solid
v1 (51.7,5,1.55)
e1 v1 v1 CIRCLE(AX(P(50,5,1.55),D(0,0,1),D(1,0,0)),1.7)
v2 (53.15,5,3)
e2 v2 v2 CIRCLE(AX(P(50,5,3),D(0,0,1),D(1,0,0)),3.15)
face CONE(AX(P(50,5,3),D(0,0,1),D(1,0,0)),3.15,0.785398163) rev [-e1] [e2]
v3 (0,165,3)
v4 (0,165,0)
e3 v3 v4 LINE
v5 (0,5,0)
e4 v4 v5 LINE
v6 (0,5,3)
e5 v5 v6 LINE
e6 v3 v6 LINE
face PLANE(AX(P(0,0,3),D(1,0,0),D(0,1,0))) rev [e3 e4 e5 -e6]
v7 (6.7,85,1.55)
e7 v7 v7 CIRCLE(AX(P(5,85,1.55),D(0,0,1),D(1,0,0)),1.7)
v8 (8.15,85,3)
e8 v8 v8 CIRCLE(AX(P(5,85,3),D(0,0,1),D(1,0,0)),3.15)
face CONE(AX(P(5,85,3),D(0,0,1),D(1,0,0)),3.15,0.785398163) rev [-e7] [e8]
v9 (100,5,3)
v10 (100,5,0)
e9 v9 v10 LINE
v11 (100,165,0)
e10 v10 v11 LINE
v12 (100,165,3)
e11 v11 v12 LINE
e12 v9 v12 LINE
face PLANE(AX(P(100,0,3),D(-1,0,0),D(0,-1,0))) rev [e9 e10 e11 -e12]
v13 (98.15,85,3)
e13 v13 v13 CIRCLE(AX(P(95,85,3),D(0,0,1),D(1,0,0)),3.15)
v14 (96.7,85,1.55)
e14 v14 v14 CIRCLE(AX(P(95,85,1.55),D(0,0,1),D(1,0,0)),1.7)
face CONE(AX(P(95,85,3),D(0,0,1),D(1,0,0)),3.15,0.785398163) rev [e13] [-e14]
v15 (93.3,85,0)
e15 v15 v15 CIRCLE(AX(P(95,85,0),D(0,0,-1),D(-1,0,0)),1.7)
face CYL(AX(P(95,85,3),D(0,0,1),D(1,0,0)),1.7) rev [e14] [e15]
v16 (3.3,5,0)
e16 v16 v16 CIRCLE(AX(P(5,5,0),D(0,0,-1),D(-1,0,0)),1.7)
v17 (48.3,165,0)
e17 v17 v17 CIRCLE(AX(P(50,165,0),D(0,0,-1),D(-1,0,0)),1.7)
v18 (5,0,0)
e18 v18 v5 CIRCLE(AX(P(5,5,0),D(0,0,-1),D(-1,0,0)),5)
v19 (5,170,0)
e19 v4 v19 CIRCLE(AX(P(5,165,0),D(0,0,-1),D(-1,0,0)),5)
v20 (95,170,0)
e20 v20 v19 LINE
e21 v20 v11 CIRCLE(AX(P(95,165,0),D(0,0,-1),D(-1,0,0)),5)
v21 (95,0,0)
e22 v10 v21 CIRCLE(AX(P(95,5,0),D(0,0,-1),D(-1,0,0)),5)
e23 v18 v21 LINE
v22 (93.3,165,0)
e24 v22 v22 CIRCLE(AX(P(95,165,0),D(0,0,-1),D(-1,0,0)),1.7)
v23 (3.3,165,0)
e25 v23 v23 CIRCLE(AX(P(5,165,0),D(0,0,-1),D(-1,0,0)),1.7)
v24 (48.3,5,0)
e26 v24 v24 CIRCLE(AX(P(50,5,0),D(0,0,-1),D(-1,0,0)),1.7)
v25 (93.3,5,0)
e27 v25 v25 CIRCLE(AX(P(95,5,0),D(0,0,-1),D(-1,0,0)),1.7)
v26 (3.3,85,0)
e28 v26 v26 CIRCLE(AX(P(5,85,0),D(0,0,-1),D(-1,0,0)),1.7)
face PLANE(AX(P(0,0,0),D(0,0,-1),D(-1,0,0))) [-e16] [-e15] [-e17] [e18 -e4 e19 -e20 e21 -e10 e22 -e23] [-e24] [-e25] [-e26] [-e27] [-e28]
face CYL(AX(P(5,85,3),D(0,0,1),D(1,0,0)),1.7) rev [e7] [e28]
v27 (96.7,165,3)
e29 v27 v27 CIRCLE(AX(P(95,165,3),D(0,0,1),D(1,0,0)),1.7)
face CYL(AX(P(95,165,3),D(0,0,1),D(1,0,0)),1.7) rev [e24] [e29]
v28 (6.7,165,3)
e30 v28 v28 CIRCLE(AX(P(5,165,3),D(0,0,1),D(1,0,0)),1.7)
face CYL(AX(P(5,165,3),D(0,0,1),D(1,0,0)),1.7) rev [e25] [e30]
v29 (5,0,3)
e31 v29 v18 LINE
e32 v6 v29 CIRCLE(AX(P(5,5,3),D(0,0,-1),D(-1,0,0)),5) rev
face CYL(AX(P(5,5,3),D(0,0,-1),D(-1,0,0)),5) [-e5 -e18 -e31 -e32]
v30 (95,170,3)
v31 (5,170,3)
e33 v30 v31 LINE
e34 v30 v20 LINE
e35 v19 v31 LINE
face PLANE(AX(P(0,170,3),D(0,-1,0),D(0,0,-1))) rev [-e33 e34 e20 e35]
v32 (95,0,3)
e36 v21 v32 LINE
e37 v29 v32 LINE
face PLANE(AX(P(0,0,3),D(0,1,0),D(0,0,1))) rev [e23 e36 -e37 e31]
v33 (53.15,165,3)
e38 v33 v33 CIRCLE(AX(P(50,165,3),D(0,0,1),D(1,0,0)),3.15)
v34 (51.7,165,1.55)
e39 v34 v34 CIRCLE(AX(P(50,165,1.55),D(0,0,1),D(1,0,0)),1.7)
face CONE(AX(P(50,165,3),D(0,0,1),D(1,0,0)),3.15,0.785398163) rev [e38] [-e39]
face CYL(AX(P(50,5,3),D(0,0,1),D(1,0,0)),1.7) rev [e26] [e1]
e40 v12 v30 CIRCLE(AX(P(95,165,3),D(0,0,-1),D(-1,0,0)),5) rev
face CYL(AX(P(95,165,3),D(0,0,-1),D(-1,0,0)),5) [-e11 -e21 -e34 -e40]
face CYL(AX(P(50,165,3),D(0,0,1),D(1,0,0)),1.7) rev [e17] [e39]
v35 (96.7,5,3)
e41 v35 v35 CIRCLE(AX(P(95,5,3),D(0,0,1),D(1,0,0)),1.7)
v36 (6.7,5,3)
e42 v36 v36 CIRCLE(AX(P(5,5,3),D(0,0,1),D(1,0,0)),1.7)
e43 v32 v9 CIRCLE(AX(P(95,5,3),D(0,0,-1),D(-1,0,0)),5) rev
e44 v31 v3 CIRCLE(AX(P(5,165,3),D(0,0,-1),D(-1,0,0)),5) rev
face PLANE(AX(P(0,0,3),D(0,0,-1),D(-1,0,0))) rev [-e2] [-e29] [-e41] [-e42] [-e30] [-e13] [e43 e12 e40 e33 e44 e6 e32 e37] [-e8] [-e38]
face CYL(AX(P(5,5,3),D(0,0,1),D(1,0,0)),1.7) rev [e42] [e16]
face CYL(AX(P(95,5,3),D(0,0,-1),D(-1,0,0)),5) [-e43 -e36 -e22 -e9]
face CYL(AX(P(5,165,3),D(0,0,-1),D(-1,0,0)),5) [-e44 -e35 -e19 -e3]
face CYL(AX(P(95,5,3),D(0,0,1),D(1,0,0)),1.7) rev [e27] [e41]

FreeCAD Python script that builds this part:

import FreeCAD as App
import Part
import Sketcher
Q = App.Units.Quantity


def edges_at(feature, points):
    """Names of the edges that pass closest to the given points."""
    edges = feature.Shape.Edges
    near = lambda p: min(range(len(edges)), key=lambda i: edges[i].distToShape(Part.Vertex(*p))[0])
    return sorted({f"Edge{near(p) + 1}" for p in points})


def add_polygon(sketch, points):
    """Adds a closed chain of lines whose ends are joined by coincident constraints."""
    first, n = sketch.GeometryCount, len(points)
    for a, b in zip(points, points[1:] + points[:1]):
        sketch.addGeometry(Part.LineSegment(App.Vector(*a, 0), App.Vector(*b, 0)), False)
    for i in range(n):
        sketch.addConstraint(Sketcher.Constraint("Coincident", first + i, 2, first + (i + 1) % n, 1))

doc = App.newDocument("Part")
params = doc.addObject("Spreadsheet::Sheet", "Params")
for row, (alias, value) in enumerate([
    ("sketch1_width", "100 mm"),
    ("sketch1_height", "170 mm"),
    ("pad1_length", "3 mm"),
    ("sketch2_diameter", "3.4 mm"),
    ("hole_diameter", "3.4 mm"),
    ("hole_depth", "7.5 mm"),
    ("fillet_radius", "5 mm"),
    ("sketch3_diameter", "3.4 mm"),
    ("hole2_diameter", "3.4 mm"),
    ("hole2_depth", "7.5 mm"),
    ("hole2_csink_diameter", "6.3 mm"),
], start=1):
    params.set(f"A{row}", alias)
    params.set(f"B{row}", "=" + value)
    params.setAlias(f"B{row}", alias)

body = doc.addObject("PartDesign::Body", "Body")

sketch1 = body.newObject("Sketcher::SketchObject", "Sketch")
sketch1.AttachmentSupport = (doc.getObject("XY_Plane"), [""])
sketch1.MapMode = "FlatFace"
add_polygon(sketch1, [(0, 170), (0, 0), (100, 0), (100, 170)])
sketch1.addConstraint([
    Sketcher.Constraint("Vertical", 0),
    Sketcher.Constraint("Horizontal", 1),
    Sketcher.Constraint("Vertical", 2),
    Sketcher.Constraint("Horizontal", 3),
    Sketcher.Constraint("Coincident", 0, 2, -1, 1),
    Sketcher.Constraint("DistanceX", 1, 1, 1, 2, Q("100 mm")),
    Sketcher.Constraint("DistanceY", 0, 2, 0, 1, Q("170 mm")),
])
sketch1.setExpression("Constraints[9]", "Params.sketch1_width")
sketch1.setExpression("Constraints[10]", "Params.sketch1_height")
pad1 = body.newObject("PartDesign::Pad", "Pad")
pad1.Profile = sketch1
pad1.setExpression("Length", "Params.pad1_length")

sketch2 = body.newObject("Sketcher::SketchObject", "Sketch001")
sketch2.AttachmentSupport = (doc.getObject("XY_Plane"), [""])
sketch2.MapMode = "FlatFace"
sketch2.AttachmentOffset = App.Placement(App.Vector(0, 0, 3), App.Rotation())
sketch2.addGeometry([
    Part.Circle(App.Vector(5, 165, 0), App.Vector(0, 0, 1), 1.7),
    Part.Circle(App.Vector(95, 165, 0), App.Vector(0, 0, 1), 1.7),
    Part.Circle(App.Vector(95, 5, 0), App.Vector(0, 0, 1), 1.7),
    Part.Circle(App.Vector(5, 5, 0), App.Vector(0, 0, 1), 1.7),
], False)
sketch2.addConstraint([
    Sketcher.Constraint("Equal", 0, 1),
    Sketcher.Constraint("Equal", 1, 2),
    Sketcher.Constraint("Equal", 2, 3),
    Sketcher.Constraint("Horizontal", 0, 3, 1, 3),
    Sketcher.Constraint("Horizontal", 2, 3, 3, 3),
    Sketcher.Constraint("Vertical", 1, 3, 2, 3),
    Sketcher.Constraint("Vertical", 0, 3, 3, 3),
    Sketcher.Constraint("Diameter", 0, Q("3.4 mm")),
    Sketcher.Constraint("DistanceX", -1, 1, 0, 3, Q("5 mm")),
    Sketcher.Constraint("DistanceY", -1, 1, 0, 3, Q("165 mm")),
    Sketcher.Constraint("DistanceX", -1, 1, 1, 3, Q("95 mm")),
    Sketcher.Constraint("DistanceY", -1, 1, 2, 3, Q("5 mm")),
])
sketch2.setExpression("Constraints[7]", "Params.sketch2_diameter")
doc.recompute()
hole = body.newObject("PartDesign::Hole", "Hole")
hole.Profile = sketch2
hole.ThreadType = "None"
hole.setExpression("Diameter", "Params.hole_diameter")
hole.DepthType = "Dimension"
hole.setExpression("Depth", "Params.hole_depth")
hole.DrillPoint = "Angled"
hole.DrillPointAngle = 118
doc.recompute()

fillet = body.newObject("PartDesign::Fillet", "Fillet")
fillet.Base = (hole, edges_at(hole, [
    (0, 170, 1.5),
    (100, 170, 1.5),
    (100, 0, 1.5),
    (0, 0, 1.5),
]))
fillet.setExpression("Radius", "Params.fillet_radius")

sketch3 = body.newObject("Sketcher::SketchObject", "Sketch002")
sketch3.AttachmentSupport = (doc.getObject("XY_Plane"), [""])
sketch3.MapMode = "FlatFace"
sketch3.AttachmentOffset = App.Placement(App.Vector(0, 0, 3), App.Rotation())
sketch3.addGeometry([
    Part.Circle(App.Vector(50, 165, 0), App.Vector(0, 0, 1), 1.7),
    Part.Circle(App.Vector(50, 5, 0), App.Vector(0, 0, 1), 1.7),
    Part.Circle(App.Vector(95, 85, 0), App.Vector(0, 0, 1), 1.7),
    Part.Circle(App.Vector(5, 85, 0), App.Vector(0, 0, 1), 1.7),
], False)
sketch3.addConstraint([
    Sketcher.Constraint("Equal", 0, 1),
    Sketcher.Constraint("Equal", 1, 2),
    Sketcher.Constraint("Equal", 2, 3),
    Sketcher.Constraint("Horizontal", 2, 3, 3, 3),
    Sketcher.Constraint("Vertical", 0, 3, 1, 3),
    Sketcher.Constraint("Diameter", 0, Q("3.4 mm")),
    Sketcher.Constraint("DistanceX", -1, 1, 0, 3, Q("50 mm")),
    Sketcher.Constraint("DistanceY", -1, 1, 0, 3, Q("165 mm")),
    Sketcher.Constraint("DistanceY", -1, 1, 1, 3, Q("5 mm")),
    Sketcher.Constraint("DistanceX", -1, 1, 2, 3, Q("95 mm")),
    Sketcher.Constraint("DistanceY", -1, 1, 2, 3, Q("85 mm")),
    Sketcher.Constraint("DistanceX", -1, 1, 3, 3, Q("5 mm")),
])
sketch3.setExpression("Constraints[5]", "Params.sketch3_diameter")
doc.recompute()
hole2 = body.newObject("PartDesign::Hole", "Hole001")
hole2.Profile = sketch3
hole2.ThreadType = "None"
hole2.setExpression("Diameter", "Params.hole2_diameter")
hole2.DepthType = "Dimension"
hole2.setExpression("Depth", "Params.hole2_depth")
hole2.DrillPoint = "Angled"
hole2.DrillPointAngle = 118
hole2.HoleCutType = "Countersink"
hole2.setExpression("HoleCutDiameter", "Params.hole2_csink_diameter")
hole2.HoleCutCountersinkAngle = 90

doc.recompute()
